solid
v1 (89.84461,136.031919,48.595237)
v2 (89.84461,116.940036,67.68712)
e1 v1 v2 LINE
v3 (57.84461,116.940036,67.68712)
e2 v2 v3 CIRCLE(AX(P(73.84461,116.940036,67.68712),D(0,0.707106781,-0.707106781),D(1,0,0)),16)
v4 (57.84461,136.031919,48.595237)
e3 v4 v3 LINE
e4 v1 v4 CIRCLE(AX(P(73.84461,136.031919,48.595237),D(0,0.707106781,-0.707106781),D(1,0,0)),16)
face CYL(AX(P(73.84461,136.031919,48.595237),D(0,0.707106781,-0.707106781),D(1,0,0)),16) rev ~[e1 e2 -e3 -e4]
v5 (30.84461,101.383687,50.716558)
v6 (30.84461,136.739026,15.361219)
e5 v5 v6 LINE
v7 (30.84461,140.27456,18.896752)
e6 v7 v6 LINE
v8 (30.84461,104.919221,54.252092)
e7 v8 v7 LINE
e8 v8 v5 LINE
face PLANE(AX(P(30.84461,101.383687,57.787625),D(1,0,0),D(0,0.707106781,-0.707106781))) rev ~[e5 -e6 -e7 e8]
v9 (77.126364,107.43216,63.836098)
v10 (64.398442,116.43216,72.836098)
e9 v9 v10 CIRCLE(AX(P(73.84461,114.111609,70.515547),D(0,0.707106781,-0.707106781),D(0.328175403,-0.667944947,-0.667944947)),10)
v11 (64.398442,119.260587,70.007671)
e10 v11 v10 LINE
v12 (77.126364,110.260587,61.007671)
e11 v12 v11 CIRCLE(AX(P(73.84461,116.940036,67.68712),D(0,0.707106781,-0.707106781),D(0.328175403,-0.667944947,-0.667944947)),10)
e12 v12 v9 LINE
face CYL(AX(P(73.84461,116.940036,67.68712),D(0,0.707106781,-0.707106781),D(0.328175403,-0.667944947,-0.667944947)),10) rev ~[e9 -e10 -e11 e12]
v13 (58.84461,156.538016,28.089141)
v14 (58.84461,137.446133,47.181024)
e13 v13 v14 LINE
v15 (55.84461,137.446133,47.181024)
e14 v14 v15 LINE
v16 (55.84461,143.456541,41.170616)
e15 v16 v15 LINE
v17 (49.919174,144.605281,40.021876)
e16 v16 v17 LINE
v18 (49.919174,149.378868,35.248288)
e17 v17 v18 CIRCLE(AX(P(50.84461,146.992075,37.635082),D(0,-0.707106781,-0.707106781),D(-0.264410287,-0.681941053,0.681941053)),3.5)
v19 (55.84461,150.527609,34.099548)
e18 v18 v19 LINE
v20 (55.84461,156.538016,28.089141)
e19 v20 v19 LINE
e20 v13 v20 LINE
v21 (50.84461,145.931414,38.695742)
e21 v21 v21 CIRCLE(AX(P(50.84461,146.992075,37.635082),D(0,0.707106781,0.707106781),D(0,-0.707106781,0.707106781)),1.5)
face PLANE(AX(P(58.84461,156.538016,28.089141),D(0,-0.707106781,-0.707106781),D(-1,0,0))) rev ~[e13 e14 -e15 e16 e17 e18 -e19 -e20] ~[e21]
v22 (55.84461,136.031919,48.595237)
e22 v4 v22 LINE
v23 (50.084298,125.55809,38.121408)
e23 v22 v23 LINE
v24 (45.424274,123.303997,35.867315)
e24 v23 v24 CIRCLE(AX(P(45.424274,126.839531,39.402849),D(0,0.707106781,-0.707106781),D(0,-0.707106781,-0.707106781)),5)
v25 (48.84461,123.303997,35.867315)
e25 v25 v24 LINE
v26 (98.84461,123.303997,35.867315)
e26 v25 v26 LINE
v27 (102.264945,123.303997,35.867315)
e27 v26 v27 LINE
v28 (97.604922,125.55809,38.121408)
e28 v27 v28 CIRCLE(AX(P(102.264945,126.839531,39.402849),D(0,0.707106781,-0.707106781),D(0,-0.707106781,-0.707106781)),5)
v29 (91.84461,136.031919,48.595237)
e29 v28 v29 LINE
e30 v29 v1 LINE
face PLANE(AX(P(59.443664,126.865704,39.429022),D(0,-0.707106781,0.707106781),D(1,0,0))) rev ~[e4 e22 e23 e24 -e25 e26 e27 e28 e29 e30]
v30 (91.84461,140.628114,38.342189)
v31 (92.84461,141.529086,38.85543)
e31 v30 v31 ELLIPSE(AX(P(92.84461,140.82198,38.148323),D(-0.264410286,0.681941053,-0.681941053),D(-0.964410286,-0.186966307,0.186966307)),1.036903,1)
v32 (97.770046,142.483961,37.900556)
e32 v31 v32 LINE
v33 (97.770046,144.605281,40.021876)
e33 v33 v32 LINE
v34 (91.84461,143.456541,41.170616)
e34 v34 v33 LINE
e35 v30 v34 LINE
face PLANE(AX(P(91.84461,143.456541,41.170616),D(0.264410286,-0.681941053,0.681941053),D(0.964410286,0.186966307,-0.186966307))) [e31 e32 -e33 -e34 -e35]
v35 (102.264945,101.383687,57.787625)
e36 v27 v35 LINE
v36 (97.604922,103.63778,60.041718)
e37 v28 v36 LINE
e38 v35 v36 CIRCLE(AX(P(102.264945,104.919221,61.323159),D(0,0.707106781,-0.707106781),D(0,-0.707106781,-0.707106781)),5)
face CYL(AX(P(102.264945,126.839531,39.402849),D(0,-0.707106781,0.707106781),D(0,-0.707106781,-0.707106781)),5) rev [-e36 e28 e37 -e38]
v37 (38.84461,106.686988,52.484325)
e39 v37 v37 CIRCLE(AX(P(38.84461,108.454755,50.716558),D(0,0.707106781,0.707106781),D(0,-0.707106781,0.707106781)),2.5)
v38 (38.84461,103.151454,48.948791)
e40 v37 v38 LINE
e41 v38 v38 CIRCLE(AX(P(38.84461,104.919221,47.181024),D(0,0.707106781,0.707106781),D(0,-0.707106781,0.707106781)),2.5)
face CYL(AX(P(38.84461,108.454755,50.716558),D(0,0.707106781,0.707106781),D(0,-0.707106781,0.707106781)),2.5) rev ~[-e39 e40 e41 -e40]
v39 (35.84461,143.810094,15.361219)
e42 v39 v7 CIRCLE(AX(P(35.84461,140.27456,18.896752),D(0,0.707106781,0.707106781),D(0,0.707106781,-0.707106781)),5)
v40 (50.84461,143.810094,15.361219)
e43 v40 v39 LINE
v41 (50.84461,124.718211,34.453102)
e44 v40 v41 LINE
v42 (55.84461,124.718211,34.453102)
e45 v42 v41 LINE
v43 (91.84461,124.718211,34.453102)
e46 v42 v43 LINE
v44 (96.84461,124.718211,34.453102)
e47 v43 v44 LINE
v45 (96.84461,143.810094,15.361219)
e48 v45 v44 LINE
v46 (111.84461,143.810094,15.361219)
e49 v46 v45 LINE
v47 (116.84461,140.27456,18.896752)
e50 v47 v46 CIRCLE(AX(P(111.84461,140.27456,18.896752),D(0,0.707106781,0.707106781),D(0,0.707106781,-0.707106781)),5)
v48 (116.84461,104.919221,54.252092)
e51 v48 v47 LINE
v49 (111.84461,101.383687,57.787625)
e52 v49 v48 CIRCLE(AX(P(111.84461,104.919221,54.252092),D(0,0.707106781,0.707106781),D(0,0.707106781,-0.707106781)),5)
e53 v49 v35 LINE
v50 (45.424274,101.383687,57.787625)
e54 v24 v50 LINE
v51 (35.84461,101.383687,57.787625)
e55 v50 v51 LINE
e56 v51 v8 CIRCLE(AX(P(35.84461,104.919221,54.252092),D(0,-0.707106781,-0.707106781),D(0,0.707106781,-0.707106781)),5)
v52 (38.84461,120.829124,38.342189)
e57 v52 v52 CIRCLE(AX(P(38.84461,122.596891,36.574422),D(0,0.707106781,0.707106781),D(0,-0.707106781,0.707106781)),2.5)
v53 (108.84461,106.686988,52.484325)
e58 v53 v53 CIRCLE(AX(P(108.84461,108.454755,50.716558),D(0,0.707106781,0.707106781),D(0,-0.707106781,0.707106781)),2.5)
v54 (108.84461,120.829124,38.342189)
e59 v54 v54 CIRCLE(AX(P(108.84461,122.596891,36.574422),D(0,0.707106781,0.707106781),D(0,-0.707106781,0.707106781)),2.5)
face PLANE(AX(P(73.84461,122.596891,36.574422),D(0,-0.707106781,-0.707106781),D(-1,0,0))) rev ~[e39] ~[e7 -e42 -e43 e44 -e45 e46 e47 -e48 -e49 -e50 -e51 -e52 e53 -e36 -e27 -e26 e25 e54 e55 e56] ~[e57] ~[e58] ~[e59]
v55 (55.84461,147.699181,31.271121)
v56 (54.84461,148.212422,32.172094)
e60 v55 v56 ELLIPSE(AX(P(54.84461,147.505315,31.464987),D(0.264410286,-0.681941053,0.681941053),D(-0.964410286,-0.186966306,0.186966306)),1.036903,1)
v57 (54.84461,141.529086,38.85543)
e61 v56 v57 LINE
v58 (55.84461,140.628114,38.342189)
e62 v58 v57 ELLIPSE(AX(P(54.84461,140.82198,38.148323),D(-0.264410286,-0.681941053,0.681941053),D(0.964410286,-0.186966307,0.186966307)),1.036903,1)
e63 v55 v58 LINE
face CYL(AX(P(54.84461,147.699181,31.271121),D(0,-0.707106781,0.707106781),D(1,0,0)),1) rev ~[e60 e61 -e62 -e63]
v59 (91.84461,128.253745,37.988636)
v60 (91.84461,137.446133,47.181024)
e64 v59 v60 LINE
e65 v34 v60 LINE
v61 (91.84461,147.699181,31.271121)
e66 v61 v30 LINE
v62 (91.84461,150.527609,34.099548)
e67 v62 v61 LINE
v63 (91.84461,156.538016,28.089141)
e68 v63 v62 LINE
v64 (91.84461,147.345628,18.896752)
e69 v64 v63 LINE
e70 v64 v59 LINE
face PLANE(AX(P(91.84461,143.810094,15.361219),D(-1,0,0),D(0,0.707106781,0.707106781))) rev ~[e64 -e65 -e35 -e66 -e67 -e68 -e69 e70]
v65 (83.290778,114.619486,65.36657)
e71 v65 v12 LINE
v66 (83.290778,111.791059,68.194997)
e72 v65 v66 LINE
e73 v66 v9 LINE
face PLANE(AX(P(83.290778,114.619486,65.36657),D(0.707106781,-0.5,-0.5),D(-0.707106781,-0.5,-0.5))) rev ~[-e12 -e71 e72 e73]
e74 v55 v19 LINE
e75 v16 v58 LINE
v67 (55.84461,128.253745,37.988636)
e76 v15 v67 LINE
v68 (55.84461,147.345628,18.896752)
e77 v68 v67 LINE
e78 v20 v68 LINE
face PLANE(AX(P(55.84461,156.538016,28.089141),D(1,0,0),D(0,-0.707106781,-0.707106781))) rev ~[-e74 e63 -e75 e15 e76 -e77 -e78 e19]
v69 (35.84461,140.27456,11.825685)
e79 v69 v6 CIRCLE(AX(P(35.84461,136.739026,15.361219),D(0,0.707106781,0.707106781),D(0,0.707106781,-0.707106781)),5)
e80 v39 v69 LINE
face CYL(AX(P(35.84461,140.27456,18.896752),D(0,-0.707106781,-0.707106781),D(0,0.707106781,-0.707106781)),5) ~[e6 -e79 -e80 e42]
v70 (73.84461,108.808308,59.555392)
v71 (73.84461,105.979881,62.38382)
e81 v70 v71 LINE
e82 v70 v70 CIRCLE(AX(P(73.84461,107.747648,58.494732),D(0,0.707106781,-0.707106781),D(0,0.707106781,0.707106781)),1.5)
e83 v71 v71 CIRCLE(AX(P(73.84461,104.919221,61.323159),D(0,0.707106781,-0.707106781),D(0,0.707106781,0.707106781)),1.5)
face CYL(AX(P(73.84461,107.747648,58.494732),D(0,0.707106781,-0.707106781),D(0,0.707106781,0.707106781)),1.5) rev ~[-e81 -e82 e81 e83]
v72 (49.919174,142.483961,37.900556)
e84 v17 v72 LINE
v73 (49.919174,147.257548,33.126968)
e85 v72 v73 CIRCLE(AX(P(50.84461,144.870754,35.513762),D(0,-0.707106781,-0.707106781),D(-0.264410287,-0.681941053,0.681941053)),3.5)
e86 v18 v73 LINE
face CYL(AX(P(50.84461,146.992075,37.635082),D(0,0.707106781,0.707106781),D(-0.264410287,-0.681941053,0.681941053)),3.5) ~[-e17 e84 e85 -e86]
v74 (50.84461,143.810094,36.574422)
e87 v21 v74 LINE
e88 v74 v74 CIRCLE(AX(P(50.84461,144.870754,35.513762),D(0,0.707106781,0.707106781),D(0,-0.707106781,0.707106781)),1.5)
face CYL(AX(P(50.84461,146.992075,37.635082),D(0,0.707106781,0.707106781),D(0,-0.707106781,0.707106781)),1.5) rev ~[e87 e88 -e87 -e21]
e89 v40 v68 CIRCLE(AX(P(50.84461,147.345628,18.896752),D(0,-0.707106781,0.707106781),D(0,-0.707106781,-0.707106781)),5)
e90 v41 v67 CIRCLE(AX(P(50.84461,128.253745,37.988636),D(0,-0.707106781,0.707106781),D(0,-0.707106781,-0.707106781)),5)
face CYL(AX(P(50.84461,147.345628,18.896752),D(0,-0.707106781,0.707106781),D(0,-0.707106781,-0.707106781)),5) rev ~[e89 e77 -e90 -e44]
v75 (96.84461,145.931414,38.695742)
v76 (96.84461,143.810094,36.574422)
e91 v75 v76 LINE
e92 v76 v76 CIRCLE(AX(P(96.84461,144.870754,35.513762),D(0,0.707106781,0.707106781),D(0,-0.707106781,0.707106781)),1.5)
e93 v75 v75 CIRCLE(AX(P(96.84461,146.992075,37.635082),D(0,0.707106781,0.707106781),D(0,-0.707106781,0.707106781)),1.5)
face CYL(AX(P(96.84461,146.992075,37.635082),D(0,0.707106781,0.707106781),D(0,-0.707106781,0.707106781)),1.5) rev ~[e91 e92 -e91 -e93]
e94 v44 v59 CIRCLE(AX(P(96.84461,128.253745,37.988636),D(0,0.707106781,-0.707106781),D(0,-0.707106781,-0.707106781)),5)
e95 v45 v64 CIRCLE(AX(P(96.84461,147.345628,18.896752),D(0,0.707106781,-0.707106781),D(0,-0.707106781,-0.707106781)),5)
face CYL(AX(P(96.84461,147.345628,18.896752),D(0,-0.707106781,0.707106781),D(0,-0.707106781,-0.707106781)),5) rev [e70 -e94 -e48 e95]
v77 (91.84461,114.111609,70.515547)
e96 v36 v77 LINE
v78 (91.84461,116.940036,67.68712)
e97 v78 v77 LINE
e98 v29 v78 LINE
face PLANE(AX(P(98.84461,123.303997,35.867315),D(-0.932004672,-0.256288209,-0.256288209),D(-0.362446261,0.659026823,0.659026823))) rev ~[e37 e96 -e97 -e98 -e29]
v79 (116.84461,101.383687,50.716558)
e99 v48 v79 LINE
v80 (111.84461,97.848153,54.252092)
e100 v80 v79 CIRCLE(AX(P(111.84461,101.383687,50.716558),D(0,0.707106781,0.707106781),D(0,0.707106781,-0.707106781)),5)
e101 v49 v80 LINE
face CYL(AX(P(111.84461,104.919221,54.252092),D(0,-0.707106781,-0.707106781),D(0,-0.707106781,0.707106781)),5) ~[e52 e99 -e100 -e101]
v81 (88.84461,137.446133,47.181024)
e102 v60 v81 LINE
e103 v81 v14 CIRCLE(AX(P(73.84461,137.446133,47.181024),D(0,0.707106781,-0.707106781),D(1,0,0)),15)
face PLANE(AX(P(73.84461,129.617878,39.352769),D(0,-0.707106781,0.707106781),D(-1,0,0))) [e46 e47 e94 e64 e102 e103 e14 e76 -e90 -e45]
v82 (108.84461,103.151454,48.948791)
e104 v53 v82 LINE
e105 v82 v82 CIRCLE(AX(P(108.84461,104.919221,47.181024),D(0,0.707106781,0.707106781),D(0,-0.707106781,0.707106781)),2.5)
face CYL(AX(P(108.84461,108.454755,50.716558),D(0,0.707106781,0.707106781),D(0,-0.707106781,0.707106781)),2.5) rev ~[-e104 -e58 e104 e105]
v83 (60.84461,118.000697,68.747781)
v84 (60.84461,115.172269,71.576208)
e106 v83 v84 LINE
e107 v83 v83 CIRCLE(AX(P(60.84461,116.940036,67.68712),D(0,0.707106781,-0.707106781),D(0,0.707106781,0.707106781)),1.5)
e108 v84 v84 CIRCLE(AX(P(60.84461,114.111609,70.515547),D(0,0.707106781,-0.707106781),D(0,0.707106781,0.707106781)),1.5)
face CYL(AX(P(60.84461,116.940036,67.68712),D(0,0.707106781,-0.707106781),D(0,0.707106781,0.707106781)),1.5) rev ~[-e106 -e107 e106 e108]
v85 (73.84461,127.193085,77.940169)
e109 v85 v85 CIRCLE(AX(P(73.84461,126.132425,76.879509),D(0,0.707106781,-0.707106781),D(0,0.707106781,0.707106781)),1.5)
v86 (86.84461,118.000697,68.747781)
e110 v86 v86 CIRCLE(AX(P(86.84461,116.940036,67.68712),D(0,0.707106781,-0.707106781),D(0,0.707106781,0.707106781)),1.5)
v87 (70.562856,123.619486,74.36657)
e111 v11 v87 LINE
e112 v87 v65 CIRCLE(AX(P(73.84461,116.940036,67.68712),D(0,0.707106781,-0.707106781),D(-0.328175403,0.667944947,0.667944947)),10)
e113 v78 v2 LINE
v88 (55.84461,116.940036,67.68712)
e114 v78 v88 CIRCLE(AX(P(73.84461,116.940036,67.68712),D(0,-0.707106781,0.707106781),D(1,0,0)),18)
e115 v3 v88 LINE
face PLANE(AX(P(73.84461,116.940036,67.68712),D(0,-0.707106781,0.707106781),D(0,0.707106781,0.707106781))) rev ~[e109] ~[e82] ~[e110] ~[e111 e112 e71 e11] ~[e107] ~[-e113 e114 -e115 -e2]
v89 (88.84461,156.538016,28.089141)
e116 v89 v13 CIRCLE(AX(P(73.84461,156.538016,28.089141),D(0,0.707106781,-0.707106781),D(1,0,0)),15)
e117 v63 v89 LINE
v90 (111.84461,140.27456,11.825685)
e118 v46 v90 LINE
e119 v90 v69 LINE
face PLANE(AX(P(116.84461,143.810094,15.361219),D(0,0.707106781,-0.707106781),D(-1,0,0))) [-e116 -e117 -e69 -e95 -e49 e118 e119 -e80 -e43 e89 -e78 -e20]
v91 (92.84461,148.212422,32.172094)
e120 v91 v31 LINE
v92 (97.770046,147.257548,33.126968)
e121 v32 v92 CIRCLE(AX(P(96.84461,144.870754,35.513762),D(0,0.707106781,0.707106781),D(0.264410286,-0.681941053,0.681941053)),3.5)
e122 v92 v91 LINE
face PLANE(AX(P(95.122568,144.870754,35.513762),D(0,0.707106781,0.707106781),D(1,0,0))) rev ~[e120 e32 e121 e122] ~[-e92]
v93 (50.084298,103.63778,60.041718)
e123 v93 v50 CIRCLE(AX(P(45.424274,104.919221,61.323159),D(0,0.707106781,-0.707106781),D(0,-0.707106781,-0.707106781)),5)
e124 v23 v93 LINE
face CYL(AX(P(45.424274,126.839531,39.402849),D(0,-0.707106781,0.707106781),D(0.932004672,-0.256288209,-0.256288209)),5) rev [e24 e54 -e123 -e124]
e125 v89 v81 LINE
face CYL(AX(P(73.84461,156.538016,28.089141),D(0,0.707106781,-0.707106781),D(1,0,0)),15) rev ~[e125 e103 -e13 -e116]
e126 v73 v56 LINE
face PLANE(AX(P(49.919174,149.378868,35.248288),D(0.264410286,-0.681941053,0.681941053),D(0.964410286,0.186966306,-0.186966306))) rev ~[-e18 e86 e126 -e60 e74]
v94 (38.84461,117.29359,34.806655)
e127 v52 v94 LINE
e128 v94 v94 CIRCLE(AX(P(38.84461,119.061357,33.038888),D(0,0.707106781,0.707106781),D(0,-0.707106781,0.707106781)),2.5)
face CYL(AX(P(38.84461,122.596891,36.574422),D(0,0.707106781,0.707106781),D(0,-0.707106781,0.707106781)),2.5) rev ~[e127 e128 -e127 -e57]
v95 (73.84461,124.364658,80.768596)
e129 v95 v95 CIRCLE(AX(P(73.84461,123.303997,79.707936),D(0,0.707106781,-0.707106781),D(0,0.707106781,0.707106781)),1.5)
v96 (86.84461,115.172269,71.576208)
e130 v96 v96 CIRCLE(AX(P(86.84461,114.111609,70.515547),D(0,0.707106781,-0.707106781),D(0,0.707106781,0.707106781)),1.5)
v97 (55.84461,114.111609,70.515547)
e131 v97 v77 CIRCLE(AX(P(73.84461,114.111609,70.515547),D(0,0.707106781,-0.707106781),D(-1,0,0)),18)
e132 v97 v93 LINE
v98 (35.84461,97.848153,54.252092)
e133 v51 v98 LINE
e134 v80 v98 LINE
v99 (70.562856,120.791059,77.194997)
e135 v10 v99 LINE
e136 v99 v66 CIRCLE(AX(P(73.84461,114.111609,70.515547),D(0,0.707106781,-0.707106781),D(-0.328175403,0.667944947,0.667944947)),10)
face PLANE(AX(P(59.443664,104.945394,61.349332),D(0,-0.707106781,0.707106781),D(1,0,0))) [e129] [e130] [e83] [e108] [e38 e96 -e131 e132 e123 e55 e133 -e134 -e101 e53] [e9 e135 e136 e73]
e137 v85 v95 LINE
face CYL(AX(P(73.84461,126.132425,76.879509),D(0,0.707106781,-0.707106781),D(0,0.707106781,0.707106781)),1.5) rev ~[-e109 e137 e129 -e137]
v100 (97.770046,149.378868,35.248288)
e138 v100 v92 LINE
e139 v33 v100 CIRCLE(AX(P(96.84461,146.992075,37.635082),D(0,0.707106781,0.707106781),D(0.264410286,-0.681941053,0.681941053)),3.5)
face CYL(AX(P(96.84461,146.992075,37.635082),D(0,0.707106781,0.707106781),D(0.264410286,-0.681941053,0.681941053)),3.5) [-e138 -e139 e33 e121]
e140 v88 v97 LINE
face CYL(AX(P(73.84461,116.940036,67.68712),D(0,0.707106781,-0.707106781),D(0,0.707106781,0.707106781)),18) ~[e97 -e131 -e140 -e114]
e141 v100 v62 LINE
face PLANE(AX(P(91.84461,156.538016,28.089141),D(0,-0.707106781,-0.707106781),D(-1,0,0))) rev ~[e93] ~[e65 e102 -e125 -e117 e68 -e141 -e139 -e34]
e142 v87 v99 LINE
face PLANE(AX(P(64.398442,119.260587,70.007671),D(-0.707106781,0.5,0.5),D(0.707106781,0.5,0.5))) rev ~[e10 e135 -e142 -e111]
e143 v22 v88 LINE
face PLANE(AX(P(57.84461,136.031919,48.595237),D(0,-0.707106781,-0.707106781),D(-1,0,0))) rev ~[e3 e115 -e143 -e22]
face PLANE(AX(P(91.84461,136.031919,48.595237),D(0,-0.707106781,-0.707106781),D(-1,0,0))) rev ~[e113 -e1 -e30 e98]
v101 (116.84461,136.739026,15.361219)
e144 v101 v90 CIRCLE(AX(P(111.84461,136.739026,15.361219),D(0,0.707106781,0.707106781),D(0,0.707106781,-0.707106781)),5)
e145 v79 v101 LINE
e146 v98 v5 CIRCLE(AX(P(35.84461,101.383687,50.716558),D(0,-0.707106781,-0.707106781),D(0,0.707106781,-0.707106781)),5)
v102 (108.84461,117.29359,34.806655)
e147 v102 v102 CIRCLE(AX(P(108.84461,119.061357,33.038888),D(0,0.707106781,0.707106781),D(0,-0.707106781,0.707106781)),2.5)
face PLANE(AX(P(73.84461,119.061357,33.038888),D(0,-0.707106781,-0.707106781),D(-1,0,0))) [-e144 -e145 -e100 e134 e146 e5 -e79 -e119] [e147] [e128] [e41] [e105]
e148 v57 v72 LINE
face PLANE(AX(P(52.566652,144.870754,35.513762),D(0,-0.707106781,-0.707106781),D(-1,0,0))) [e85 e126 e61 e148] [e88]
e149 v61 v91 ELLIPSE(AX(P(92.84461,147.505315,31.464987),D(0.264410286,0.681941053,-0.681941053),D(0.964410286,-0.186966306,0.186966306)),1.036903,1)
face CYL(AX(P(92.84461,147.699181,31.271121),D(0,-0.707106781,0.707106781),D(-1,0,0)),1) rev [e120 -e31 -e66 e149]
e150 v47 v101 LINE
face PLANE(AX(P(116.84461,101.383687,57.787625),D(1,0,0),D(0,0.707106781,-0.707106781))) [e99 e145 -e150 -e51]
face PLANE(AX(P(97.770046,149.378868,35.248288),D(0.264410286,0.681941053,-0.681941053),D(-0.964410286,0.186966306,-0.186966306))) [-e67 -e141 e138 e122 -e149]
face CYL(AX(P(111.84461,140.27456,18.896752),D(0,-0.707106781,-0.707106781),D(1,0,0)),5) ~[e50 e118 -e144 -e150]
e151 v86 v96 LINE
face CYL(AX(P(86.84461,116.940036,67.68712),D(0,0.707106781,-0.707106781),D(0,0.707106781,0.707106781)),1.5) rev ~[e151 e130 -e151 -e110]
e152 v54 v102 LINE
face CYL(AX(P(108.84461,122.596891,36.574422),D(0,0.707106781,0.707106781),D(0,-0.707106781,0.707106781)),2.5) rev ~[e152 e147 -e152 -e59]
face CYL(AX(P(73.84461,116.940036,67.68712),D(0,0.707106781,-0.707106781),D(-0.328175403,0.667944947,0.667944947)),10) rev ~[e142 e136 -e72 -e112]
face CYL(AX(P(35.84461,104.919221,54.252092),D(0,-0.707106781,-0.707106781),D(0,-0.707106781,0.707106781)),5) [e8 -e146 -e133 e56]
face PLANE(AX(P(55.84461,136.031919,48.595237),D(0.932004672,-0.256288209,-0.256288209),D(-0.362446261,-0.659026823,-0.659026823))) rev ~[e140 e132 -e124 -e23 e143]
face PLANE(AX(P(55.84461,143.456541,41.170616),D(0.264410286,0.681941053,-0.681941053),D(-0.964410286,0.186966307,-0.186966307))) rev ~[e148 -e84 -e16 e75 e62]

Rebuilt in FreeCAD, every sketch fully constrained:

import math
import FreeCAD as App
import Part
import Sketcher
Q = App.Units.Quantity


def edges_at(feature, points):
    """Names of the edges that pass closest to the given points."""
    edges = feature.Shape.Edges
    near = lambda p: min(range(len(edges)), key=lambda i: edges[i].distToShape(Part.Vertex(*p))[0])
    return sorted({f"Edge{near(p) + 1}" for p in points})


def add_polygon(sketch, points):
    """Adds a closed chain of lines whose ends are joined by coincident constraints."""
    first, n = sketch.GeometryCount, len(points)
    for a, b in zip(points, points[1:] + points[:1]):
        sketch.addGeometry(Part.LineSegment(App.Vector(*a, 0), App.Vector(*b, 0)), False)
    for i in range(n):
        sketch.addConstraint(Sketcher.Constraint("Coincident", first + i, 2, first + (i + 1) % n, 1))

doc = App.newDocument("Part")
params = doc.addObject("Spreadsheet::Sheet", "Params")
for row, (alias, value) in enumerate([
    ("sketch1_diameter", "36 mm"),
    ("sketch1_radius", "10 mm"),
    ("pad1_length", "4 mm"),
    ("sketch2_diameter", "3 mm"),
    ("sketch3_diameter", "3 mm"),
    ("sketch4_diameter", "3 mm"),
    ("sketch5_diameter", "3 mm"),
    ("sketch6_radius", "18 mm"),
    ("sketch6_radius2", "16 mm"),
    ("pad2_length", "27 mm"),
    ("sketch7_width", "86 mm"),
    ("sketch7_height", "60 mm"),
    ("pad3_length", "5 mm"),
    ("sketch8_radius", "16 mm"),
    ("sketch8_width", "50 mm"),
    ("sketch8_width2", "2 mm"),
    ("pad4_length", "31 mm"),
    ("sketch9_radius", "15 mm"),
    ("sketch9_width", "3 mm"),
    ("sketch9_height", "18 mm"),
    ("pad5_length", "27 mm"),
    ("sketch10_diameter", "3 mm"),
    ("sketch10_radius", "3.5 mm"),
    ("sketch10_height", "10 mm"),
    ("pad6_length", "3 mm"),
    ("fillet_radius", "5 mm"),
    ("fillet2_radius", "1 mm"),
    ("sketch11_diameter", "5 mm"),
    ("sketch12_diameter", "5 mm"),
    ("sketch13_diameter", "5 mm"),
    ("sketch14_diameter", "5 mm"),
], start=1):
    params.set(f"A{row}", alias)
    params.set(f"B{row}", "=" + value)
    params.setAlias(f"B{row}", alias)

body = doc.addObject("PartDesign::Body", "Body")

sketch1 = body.newObject("Sketcher::SketchObject", "Sketch")
sketch1.Placement = App.Placement(App.Vector(0, 24.626458, -24.626458), App.Rotation(App.Vector(1, 0, 0), App.Vector(0, 0.707106781, 0.707106781), App.Vector(0, -0.707106781, 0.707106781), "ZXY"))
sketch1.addGeometry(Part.Circle(App.Vector(74, 131, 0), App.Vector(0, 0, 1), 18), False)
sketch1.addGeometry(Part.ArcOfCircle(Part.Circle(App.Vector(74, 131, 0), App.Vector(0, 0, 1), 10), math.radians(-19), math.radians(109)), False)
sketch1.addGeometry(Part.LineSegment(App.Vector(83, 127, 0), App.Vector(77, 121, 0)), False)
sketch1.addGeometry(Part.ArcOfCircle(Part.Circle(App.Vector(74, 131, 0), App.Vector(0, 0, 1), 10), math.radians(161), math.radians(289)), False)
sketch1.addGeometry(Part.LineSegment(App.Vector(64, 134, 0), App.Vector(71, 140, 0)), False)
sketch1.addConstraint(Sketcher.Constraint("Coincident", 1, 1, 2, 1))
sketch1.addConstraint(Sketcher.Constraint("Coincident", 2, 2, 3, 2))
sketch1.addConstraint(Sketcher.Constraint("Coincident", 3, 1, 4, 1))
sketch1.addConstraint(Sketcher.Constraint("Coincident", 4, 2, 1, 2))
sketch1.addConstraint(Sketcher.Constraint("Coincident", 1, 3, 0, 3))
sketch1.addConstraint(Sketcher.Constraint("Coincident", 3, 3, 0, 3))
sketch1.addConstraint(Sketcher.Constraint("Equal", 1, 3))
sketch1.addConstraint(Sketcher.Constraint("Parallel", 2, 4))
sketch1.addConstraint(Sketcher.Constraint("Equal", 2, 4))
sketch1.addConstraint(Sketcher.Constraint("Diameter", 0, 36.0))
sketch1.addConstraint(Sketcher.Constraint("Radius", 1, 10.0))
sketch1.addConstraint(Sketcher.Constraint("Angle", 2, Q("-135 deg")))
sketch1.addConstraint(Sketcher.Constraint("DistanceX", -1, 1, 0, 3, 73.84461))
sketch1.addConstraint(Sketcher.Constraint("DistanceY", -1, 1, 1, 1, 127.26936))
sketch1.addConstraint(Sketcher.Constraint("DistanceX", -1, 1, 3, 1, 64.398442))
sketch1.setExpression("Constraints[9]", "Params.sketch1_diameter")
sketch1.setExpression("Constraints[10]", "Params.sketch1_radius")
pad1 = body.newObject("PartDesign::Pad", "Pad")
pad1.Profile = sketch1
pad1.setExpression("Length", "Params.pad1_length")

sketch2 = body.newObject("Sketcher::SketchObject", "Sketch001")
sketch2.Placement = App.Placement(App.Vector(0, 24.626458, -24.626458), App.Rotation(App.Vector(1, 0, 0), App.Vector(0, -0.707106781, -0.707106781), App.Vector(0, 0.707106781, -0.707106781), "ZXY"))
sketch2.addGeometry(Part.Circle(App.Vector(86.8, -130.6, 0), App.Vector(0, 0, 1), 1.5), False)
sketch2.addConstraint(Sketcher.Constraint("Diameter", 0, 3.0))
sketch2.addConstraint(Sketcher.Constraint("DistanceX", -1, 1, 0, 3, 86.84461))
sketch2.addConstraint(Sketcher.Constraint("DistanceY", 0, 3, -1, 1, 130.551114))
sketch2.setExpression("Constraints[0]", "Params.sketch2_diameter")
pocket1 = body.newObject("PartDesign::Pocket", "Pocket")
pocket1.Profile = sketch2
pocket1.Type = "UpToFirst"

sketch3 = body.newObject("Sketcher::SketchObject", "Sketch002")
sketch3.Placement = App.Placement(App.Vector(0, 24.626458, -24.626458), App.Rotation(App.Vector(1, 0, 0), App.Vector(0, -0.707106781, -0.707106781), App.Vector(0, 0.707106781, -0.707106781), "ZXY"))
sketch3.addGeometry(Part.Circle(App.Vector(73.8, -143.6, 0), App.Vector(0, 0, 1), 1.5), False)
sketch3.addConstraint(Sketcher.Constraint("Diameter", 0, 3.0))
sketch3.addConstraint(Sketcher.Constraint("DistanceX", -1, 1, 0, 3, 73.84461))
sketch3.addConstraint(Sketcher.Constraint("DistanceY", 0, 3, -1, 1, 143.551114))
sketch3.setExpression("Constraints[0]", "Params.sketch3_diameter")
pocket2 = body.newObject("PartDesign::Pocket", "Pocket001")
pocket2.Profile = sketch3
pocket2.Type = "UpToFirst"

sketch4 = body.newObject("Sketcher::SketchObject", "Sketch003")
sketch4.Placement = App.Placement(App.Vector(0, 24.626458, -24.626458), App.Rotation(App.Vector(1, 0, 0), App.Vector(0, -0.707106781, -0.707106781), App.Vector(0, 0.707106781, -0.707106781), "ZXY"))
sketch4.addGeometry(Part.Circle(App.Vector(60.8, -130.6, 0), App.Vector(0, 0, 1), 1.5), False)
sketch4.addConstraint(Sketcher.Constraint("Diameter", 0, 3.0))
sketch4.addConstraint(Sketcher.Constraint("DistanceX", -1, 1, 0, 3, 60.84461))
sketch4.addConstraint(Sketcher.Constraint("DistanceY", 0, 3, -1, 1, 130.551114))
sketch4.setExpression("Constraints[0]", "Params.sketch4_diameter")
pocket3 = body.newObject("PartDesign::Pocket", "Pocket002")
pocket3.Profile = sketch4
pocket3.Type = "UpToFirst"

sketch5 = body.newObject("Sketcher::SketchObject", "Sketch004")
sketch5.Placement = App.Placement(App.Vector(0, 24.626458, -24.626458), App.Rotation(App.Vector(1, 0, 0), App.Vector(0, -0.707106781, -0.707106781), App.Vector(0, 0.707106781, -0.707106781), "ZXY"))
sketch5.addGeometry(Part.Circle(App.Vector(73.8, -117.6, 0), App.Vector(0, 0, 1), 1.5), False)
sketch5.addConstraint(Sketcher.Constraint("Diameter", 0, 3.0))
sketch5.addConstraint(Sketcher.Constraint("DistanceX", -1, 1, 0, 3, 73.84461))
sketch5.addConstraint(Sketcher.Constraint("DistanceY", 0, 3, -1, 1, 117.551114))
sketch5.setExpression("Constraints[0]", "Params.sketch5_diameter")
pocket4 = body.newObject("PartDesign::Pocket", "Pocket003")
pocket4.Profile = sketch5
pocket4.Type = "UpToFirst"

sketch6 = body.newObject("Sketcher::SketchObject", "Sketch005")
sketch6.Placement = App.Placement(App.Vector(0, 43.718341, -43.718341), App.Rotation(App.Vector(1, 0, 0), App.Vector(0, -0.707106781, -0.707106781), App.Vector(0, 0.707106781, -0.707106781), "ZXY"))
sketch6.addGeometry(Part.LineSegment(App.Vector(89.8, -130.6, 0), App.Vector(91.8, -130.6, 0)), False)
sketch6.addGeometry(Part.ArcOfCircle(Part.Circle(App.Vector(73.8, -130.6, 0), App.Vector(0, 0, 1), 18), math.radians(0), math.radians(180)), False)
sketch6.addGeometry(Part.LineSegment(App.Vector(55.8, -130.6, 0), App.Vector(57.8, -130.6, 0)), False)
sketch6.addGeometry(Part.ArcOfCircle(Part.Circle(App.Vector(73.8, -130.6, 0), App.Vector(0, 0, 1), 16), math.radians(0), math.radians(180)), False)
sketch6.addConstraint(Sketcher.Constraint("Coincident", 0, 2, 1, 1))
sketch6.addConstraint(Sketcher.Constraint("Coincident", 1, 2, 2, 1))
sketch6.addConstraint(Sketcher.Constraint("Coincident", 2, 2, 3, 2))
sketch6.addConstraint(Sketcher.Constraint("Coincident", 3, 1, 0, 1))
sketch6.addConstraint(Sketcher.Constraint("Horizontal", 0))
sketch6.addConstraint(Sketcher.Constraint("Horizontal", 2))
sketch6.addConstraint(Sketcher.Constraint("Coincident", 3, 3, 1, 3))
sketch6.addConstraint(Sketcher.Constraint("Horizontal", 3, 3, 0, 2))
sketch6.addConstraint(Sketcher.Constraint("Horizontal", 0, 2, 1, 2))
sketch6.addConstraint(Sketcher.Constraint("Radius", 1, 18.0))
sketch6.addConstraint(Sketcher.Constraint("Radius", 3, 16.0))
sketch6.addConstraint(Sketcher.Constraint("DistanceX", -1, 1, 1, 3, 73.84461))
sketch6.addConstraint(Sketcher.Constraint("DistanceY", 1, 3, -1, 1, 130.551114))
sketch6.setExpression("Constraints[9]", "Params.sketch6_radius")
sketch6.setExpression("Constraints[10]", "Params.sketch6_radius2")
pad2 = body.newObject("PartDesign::Pad", "Pad001")
pad2.Profile = sketch6
pad2.setExpression("Length", "Params.pad2_length")
pad2.Reversed = True
body2 = doc.addObject("PartDesign::Body", "Body001")

sketch7 = body2.newObject("Sketcher::SketchObject", "Sketch006")
sketch7.Placement = App.Placement(App.Vector(0, 79.585656, 79.585656), App.Rotation(App.Vector(-1, 0, 0), App.Vector(0, 0.707106781, -0.707106781), App.Vector(0, -0.707106781, -0.707106781), "ZXY"))
add_polygon(sketch7, [(-117, 91), (-117, 31), (-31, 31), (-31, 91)])
sketch7.addConstraint(Sketcher.Constraint("Vertical", 0))
sketch7.addConstraint(Sketcher.Constraint("Horizontal", 1))
sketch7.addConstraint(Sketcher.Constraint("Vertical", 2))
sketch7.addConstraint(Sketcher.Constraint("Horizontal", 3))
sketch7.addConstraint(Sketcher.Constraint("DistanceX", 1, 1, 1, 2, 86.0))
sketch7.addConstraint(Sketcher.Constraint("DistanceY", 0, 2, 0, 1, 60.0))
sketch7.addConstraint(Sketcher.Constraint("DistanceX", 0, 2, -1, 1, 116.84461))
sketch7.addConstraint(Sketcher.Constraint("DistanceY", -1, 1, 0, 2, 30.827071))
sketch7.setExpression("Constraints[8]", "Params.sketch7_width")
sketch7.setExpression("Constraints[9]", "Params.sketch7_height")
pad3 = body2.newObject("PartDesign::Pad", "Pad002")
pad3.Profile = sketch7
pad3.setExpression("Length", "Params.pad3_length")
body.AllowCompound = True
doc.recompute()

boolean = body.newObject("PartDesign::Boolean", "Boolean")
boolean.Type = "Fuse"
boolean.addObjects([body2])

sketch8 = body.newObject("Sketcher::SketchObject", "Sketch007")
sketch8.Placement = App.Placement(App.Vector(0, 43.718341, -43.718341), App.Rotation(App.Vector(1, 0, 0), App.Vector(0, 0.707106781, 0.707106781), App.Vector(0, -0.707106781, 0.707106781), "ZXY"))
sketch8.addGeometry(Part.LineSegment(App.Vector(55.8, 130.6, 0), App.Vector(48.8, 112.6, 0)), False)
sketch8.addGeometry(Part.LineSegment(App.Vector(48.8, 112.6, 0), App.Vector(98.8, 112.6, 0)), False)
sketch8.addGeometry(Part.LineSegment(App.Vector(98.8, 112.6, 0), App.Vector(91.8, 130.6, 0)), False)
sketch8.addGeometry(Part.LineSegment(App.Vector(91.8, 130.6, 0), App.Vector(89.8, 130.6, 0)), False)
sketch8.addGeometry(Part.ArcOfCircle(Part.Circle(App.Vector(73.8, 130.6, 0), App.Vector(0, 0, 1), 16), math.radians(180), math.radians(360)), False)
sketch8.addGeometry(Part.LineSegment(App.Vector(57.8, 130.6, 0), App.Vector(55.8, 130.6, 0)), False)
sketch8.addConstraint(Sketcher.Constraint("Coincident", 0, 2, 1, 1))
sketch8.addConstraint(Sketcher.Constraint("Coincident", 1, 2, 2, 1))
sketch8.addConstraint(Sketcher.Constraint("Coincident", 2, 2, 3, 1))
sketch8.addConstraint(Sketcher.Constraint("Coincident", 3, 2, 4, 2))
sketch8.addConstraint(Sketcher.Constraint("Coincident", 4, 1, 5, 1))
sketch8.addConstraint(Sketcher.Constraint("Coincident", 5, 2, 0, 1))
sketch8.addConstraint(Sketcher.Constraint("Horizontal", 1))
sketch8.addConstraint(Sketcher.Constraint("Horizontal", 3))
sketch8.addConstraint(Sketcher.Constraint("Horizontal", 5))
sketch8.addConstraint(Sketcher.Constraint("Horizontal", 4, 3, 2, 2))
sketch8.addConstraint(Sketcher.Constraint("Horizontal", 3, 2, 4, 1))
sketch8.addConstraint(Sketcher.Constraint("Equal", 3, 5))
sketch8.addConstraint(Sketcher.Constraint("Equal", 0, 2))
sketch8.addConstraint(Sketcher.Constraint("Radius", 4, 16.0))
sketch8.addConstraint(Sketcher.Constraint("DistanceX", 1, 1, 1, 2, 50.0))
sketch8.addConstraint(Sketcher.Constraint("DistanceX", 3, 2, 3, 1, 2.0))
sketch8.addConstraint(Sketcher.Constraint("DistanceY", 0, 2, 4, 3, 18.0))
sketch8.addConstraint(Sketcher.Constraint("DistanceX", -1, 1, 4, 3, 73.84461))
sketch8.addConstraint(Sketcher.Constraint("DistanceY", -1, 1, 4, 3, 130.551114))
sketch8.setExpression("Constraints[13]", "Params.sketch8_radius")
sketch8.setExpression("Constraints[14]", "Params.sketch8_width")
sketch8.setExpression("Constraints[15]", "Params.sketch8_width2")
pad4 = body.newObject("PartDesign::Pad", "Pad003")
pad4.Profile = sketch8
pad4.setExpression("Length", "Params.pad4_length")

sketch9 = body.newObject("Sketcher::SketchObject", "Sketch008")
sketch9.Placement = App.Placement(App.Vector(0, 64.224438, -64.224438), App.Rotation(App.Vector(1, 0, 0), App.Vector(0, -0.707106781, -0.707106781), App.Vector(0, 0.707106781, -0.707106781), "ZXY"))
sketch9.addGeometry(Part.LineSegment(App.Vector(88.8, -130.6, 0), App.Vector(91.8, -130.6, 0)), False)
sketch9.addGeometry(Part.LineSegment(App.Vector(91.8, -130.6, 0), App.Vector(91.8, -112.6, 0)), False)
sketch9.addGeometry(Part.LineSegment(App.Vector(91.8, -112.6, 0), App.Vector(55.8, -112.6, 0)), False)
sketch9.addGeometry(Part.LineSegment(App.Vector(55.8, -112.6, 0), App.Vector(55.8, -130.6, 0)), False)
sketch9.addGeometry(Part.LineSegment(App.Vector(55.8, -130.6, 0), App.Vector(58.8, -130.6, 0)), False)
sketch9.addGeometry(Part.ArcOfCircle(Part.Circle(App.Vector(73.8, -130.6, 0), App.Vector(0, 0, 1), 15), math.radians(0), math.radians(180)), False)
sketch9.addConstraint(Sketcher.Constraint("Coincident", 0, 2, 1, 1))
sketch9.addConstraint(Sketcher.Constraint("Coincident", 1, 2, 2, 1))
sketch9.addConstraint(Sketcher.Constraint("Coincident", 2, 2, 3, 1))
sketch9.addConstraint(Sketcher.Constraint("Coincident", 3, 2, 4, 1))
sketch9.addConstraint(Sketcher.Constraint("Coincident", 4, 2, 5, 2))
sketch9.addConstraint(Sketcher.Constraint("Coincident", 5, 1, 0, 1))
sketch9.addConstraint(Sketcher.Constraint("Horizontal", 0))
sketch9.addConstraint(Sketcher.Constraint("Vertical", 1))
sketch9.addConstraint(Sketcher.Constraint("Horizontal", 2))
sketch9.addConstraint(Sketcher.Constraint("Vertical", 3))
sketch9.addConstraint(Sketcher.Constraint("Horizontal", 4))
sketch9.addConstraint(Sketcher.Constraint("Horizontal", 5, 3, 0, 2))
sketch9.addConstraint(Sketcher.Constraint("Horizontal", 0, 2, 3, 2))
sketch9.addConstraint(Sketcher.Constraint("Equal", 0, 4))
sketch9.addConstraint(Sketcher.Constraint("Radius", 5, 15.0))
sketch9.addConstraint(Sketcher.Constraint("DistanceX", 0, 1, 0, 2, 3.0))
sketch9.addConstraint(Sketcher.Constraint("DistanceY", 1, 1, 1, 2, 18.0))
sketch9.addConstraint(Sketcher.Constraint("DistanceX", -1, 1, 5, 3, 73.84461))
sketch9.addConstraint(Sketcher.Constraint("DistanceY", 5, 3, -1, 1, 130.551114))
sketch9.setExpression("Constraints[14]", "Params.sketch9_radius")
sketch9.setExpression("Constraints[15]", "Params.sketch9_width")
sketch9.setExpression("Constraints[16]", "Params.sketch9_height")
pad5 = body.newObject("PartDesign::Pad", "Pad004")
pad5.Profile = sketch9
pad5.setExpression("Length", "Params.pad5_length")
pad5.Reversed = True

sketch10 = body.newObject("Sketcher::SketchObject", "Sketch009")
sketch10.Placement = App.Placement(App.Vector(0, 92.313578, 92.313578), App.Rotation(App.Vector(1, 0, 0), App.Vector(0, 0.707106781, -0.707106781), App.Vector(0, 0.707106781, 0.707106781), "ZXY"))
sketch10.addGeometry(Part.LineSegment(App.Vector(49.9, 74, 0), App.Vector(55.8, 72.3, 0)), False)
sketch10.addGeometry(Part.LineSegment(App.Vector(55.8, 72.3, 0), App.Vector(55.8, 82.3, 0)), False)
sketch10.addGeometry(Part.LineSegment(App.Vector(55.8, 82.3, 0), App.Vector(49.9, 80.7, 0)), False)
sketch10.addGeometry(Part.ArcOfCircle(Part.Circle(App.Vector(50.8, 77.3, 0), App.Vector(0, 0, 1), 3.5), math.radians(105), math.radians(255)), False)
sketch10.addGeometry(Part.Circle(App.Vector(50.8, 77.3, 0), App.Vector(0, 0, 1), 1.5), False)
sketch10.addGeometry(Part.LineSegment(App.Vector(97.8, 80.7, 0), App.Vector(91.8, 82.3, 0)), False)
sketch10.addGeometry(Part.LineSegment(App.Vector(91.8, 82.3, 0), App.Vector(91.8, 72.3, 0)), False)
sketch10.addGeometry(Part.LineSegment(App.Vector(91.8, 72.3, 0), App.Vector(97.8, 74, 0)), False)
sketch10.addGeometry(Part.ArcOfCircle(Part.Circle(App.Vector(96.8, 77.3, 0), App.Vector(0, 0, 1), 3.5), math.radians(-75), math.radians(75)), False)
sketch10.addGeometry(Part.Circle(App.Vector(96.8, 77.3, 0), App.Vector(0, 0, 1), 1.5), False)
sketch10.addConstraint(Sketcher.Constraint("Coincident", 0, 2, 1, 1))
sketch10.addConstraint(Sketcher.Constraint("Coincident", 1, 2, 2, 1))
sketch10.addConstraint(Sketcher.Constraint("Tangent", 2, 2, 3, 1))
sketch10.addConstraint(Sketcher.Constraint("Tangent", 3, 2, 0, 1))
sketch10.addConstraint(Sketcher.Constraint("Coincident", 5, 2, 6, 1))
sketch10.addConstraint(Sketcher.Constraint("Coincident", 6, 2, 7, 1))
sketch10.addConstraint(Sketcher.Constraint("Tangent", 7, 2, 8, 1))
sketch10.addConstraint(Sketcher.Constraint("Tangent", 8, 2, 5, 1))
sketch10.addConstraint(Sketcher.Constraint("Vertical", 1))
sketch10.addConstraint(Sketcher.Constraint("Vertical", 6))
sketch10.addConstraint(Sketcher.Constraint("Coincident", 4, 3, 3, 3))
sketch10.addConstraint(Sketcher.Constraint("Coincident", 9, 3, 8, 3))
sketch10.addConstraint(Sketcher.Constraint("Equal", 3, 8))
sketch10.addConstraint(Sketcher.Constraint("Equal", 4, 9))
sketch10.addConstraint(Sketcher.Constraint("Parallel", 0, 5))
sketch10.addConstraint(Sketcher.Constraint("Parallel", 2, 7))
sketch10.addConstraint(Sketcher.Constraint("Horizontal", 4, 3, 8, 3))
sketch10.addConstraint(Sketcher.Constraint("Horizontal", 1, 2, 5, 2))
sketch10.addConstraint(Sketcher.Constraint("Horizontal", 0, 2, 6, 2))
sketch10.addConstraint(Sketcher.Constraint("Diameter", 4, 3.0))
sketch10.addConstraint(Sketcher.Constraint("Radius", 3, 3.5))
sketch10.addConstraint(Sketcher.Constraint("DistanceY", 1, 1, 1, 2, 10.0))
sketch10.addConstraint(Sketcher.Constraint("DistanceX", 3, 3, 8, 3, 46.0))
sketch10.addConstraint(Sketcher.Constraint("DistanceX", 3, 3, 0, 2, 5.0))
sketch10.addConstraint(Sketcher.Constraint("DistanceX", -1, 1, 3, 3, 50.84461))
sketch10.addConstraint(Sketcher.Constraint("DistanceY", -1, 1, 3, 3, 77.327071))
sketch10.setExpression("Constraints[19]", "Params.sketch10_diameter")
sketch10.setExpression("Constraints[20]", "Params.sketch10_radius")
sketch10.setExpression("Constraints[21]", "Params.sketch10_height")
pad6 = body.newObject("PartDesign::Pad", "Pad005")
pad6.Profile = sketch10
pad6.setExpression("Length", "Params.pad6_length")
pad6.Reversed = True
doc.recompute()

fillet = body.newObject("PartDesign::Fillet", "Fillet")
fillet.Base = (pad6, edges_at(pad6, [
    (98.845, 112.344, 46.827),
    (48.845, 112.344, 46.827),
    (30.845, 99.616, 56.02),
    (30.845, 142.042, 13.593),
    (116.845, 142.042, 13.593),
    (116.845, 99.616, 56.02),
    (91.845, 134.264, 24.907),
    (55.845, 134.264, 24.907),
]))
fillet.setExpression("Radius", "Params.fillet_radius")
doc.recompute()

fillet2 = body.newObject("PartDesign::Fillet", "Fillet001")
fillet2.Base = (fillet, edges_at(fillet, [(55.845, 144.871, 35.514), (91.845, 144.871, 35.514)]))
fillet2.setExpression("Radius", "Params.fillet2_radius")

sketch11 = body.newObject("Sketcher::SketchObject", "Sketch010")
sketch11.Placement = App.Placement(App.Vector(0, 79.585656, 79.585656), App.Rotation(App.Vector(1, 0, 0), App.Vector(0, 0.707106781, -0.707106781), App.Vector(0, 0.707106781, 0.707106781), "ZXY"))
sketch11.addGeometry(Part.Circle(App.Vector(108.8, 40.8, 0), App.Vector(0, 0, 1), 2.5), False)
sketch11.addConstraint(Sketcher.Constraint("Diameter", 0, 5.0))
sketch11.addConstraint(Sketcher.Constraint("DistanceX", -1, 1, 0, 3, 108.84461))
sketch11.addConstraint(Sketcher.Constraint("DistanceY", -1, 1, 0, 3, 40.827071))
sketch11.setExpression("Constraints[0]", "Params.sketch11_diameter")
pocket5 = body.newObject("PartDesign::Pocket", "Pocket004")
pocket5.Profile = sketch11
pocket5.Type = "UpToFirst"

sketch12 = body.newObject("Sketcher::SketchObject", "Sketch011")
sketch12.Placement = App.Placement(App.Vector(0, 79.585656, 79.585656), App.Rotation(App.Vector(1, 0, 0), App.Vector(0, 0.707106781, -0.707106781), App.Vector(0, 0.707106781, 0.707106781), "ZXY"))
sketch12.addGeometry(Part.Circle(App.Vector(38.8, 40.8, 0), App.Vector(0, 0, 1), 2.5), False)
sketch12.addConstraint(Sketcher.Constraint("Diameter", 0, 5.0))
sketch12.addConstraint(Sketcher.Constraint("DistanceX", -1, 1, 0, 3, 38.84461))
sketch12.addConstraint(Sketcher.Constraint("DistanceY", -1, 1, 0, 3, 40.827071))
sketch12.setExpression("Constraints[0]", "Params.sketch12_diameter")
pocket6 = body.newObject("PartDesign::Pocket", "Pocket005")
pocket6.Profile = sketch12
pocket6.Type = "UpToFirst"

sketch13 = body.newObject("Sketcher::SketchObject", "Sketch012")
sketch13.Placement = App.Placement(App.Vector(0, 79.585656, 79.585656), App.Rotation(App.Vector(1, 0, 0), App.Vector(0, 0.707106781, -0.707106781), App.Vector(0, 0.707106781, 0.707106781), "ZXY"))
sketch13.addGeometry(Part.Circle(App.Vector(108.8, 60.8, 0), App.Vector(0, 0, 1), 2.5), False)
sketch13.addConstraint(Sketcher.Constraint("Diameter", 0, 5.0))
sketch13.addConstraint(Sketcher.Constraint("DistanceX", -1, 1, 0, 3, 108.84461))
sketch13.addConstraint(Sketcher.Constraint("DistanceY", -1, 1, 0, 3, 60.827071))
sketch13.setExpression("Constraints[0]", "Params.sketch13_diameter")
pocket7 = body.newObject("PartDesign::Pocket", "Pocket006")
pocket7.Profile = sketch13
pocket7.Type = "UpToFirst"

sketch14 = body.newObject("Sketcher::SketchObject", "Sketch013")
sketch14.Placement = App.Placement(App.Vector(0, 79.585656, 79.585656), App.Rotation(App.Vector(1, 0, 0), App.Vector(0, 0.707106781, -0.707106781), App.Vector(0, 0.707106781, 0.707106781), "ZXY"))
sketch14.addGeometry(Part.Circle(App.Vector(38.8, 60.8, 0), App.Vector(0, 0, 1), 2.5), False)
sketch14.addConstraint(Sketcher.Constraint("Diameter", 0, 5.0))
sketch14.addConstraint(Sketcher.Constraint("DistanceX", -1, 1, 0, 3, 38.84461))
sketch14.addConstraint(Sketcher.Constraint("DistanceY", -1, 1, 0, 3, 60.827071))
sketch14.setExpression("Constraints[0]", "Params.sketch14_diameter")
pocket8 = body.newObject("PartDesign::Pocket", "Pocket007")
pocket8.Profile = sketch14
pocket8.Type = "UpToFirst"

doc.recompute()
